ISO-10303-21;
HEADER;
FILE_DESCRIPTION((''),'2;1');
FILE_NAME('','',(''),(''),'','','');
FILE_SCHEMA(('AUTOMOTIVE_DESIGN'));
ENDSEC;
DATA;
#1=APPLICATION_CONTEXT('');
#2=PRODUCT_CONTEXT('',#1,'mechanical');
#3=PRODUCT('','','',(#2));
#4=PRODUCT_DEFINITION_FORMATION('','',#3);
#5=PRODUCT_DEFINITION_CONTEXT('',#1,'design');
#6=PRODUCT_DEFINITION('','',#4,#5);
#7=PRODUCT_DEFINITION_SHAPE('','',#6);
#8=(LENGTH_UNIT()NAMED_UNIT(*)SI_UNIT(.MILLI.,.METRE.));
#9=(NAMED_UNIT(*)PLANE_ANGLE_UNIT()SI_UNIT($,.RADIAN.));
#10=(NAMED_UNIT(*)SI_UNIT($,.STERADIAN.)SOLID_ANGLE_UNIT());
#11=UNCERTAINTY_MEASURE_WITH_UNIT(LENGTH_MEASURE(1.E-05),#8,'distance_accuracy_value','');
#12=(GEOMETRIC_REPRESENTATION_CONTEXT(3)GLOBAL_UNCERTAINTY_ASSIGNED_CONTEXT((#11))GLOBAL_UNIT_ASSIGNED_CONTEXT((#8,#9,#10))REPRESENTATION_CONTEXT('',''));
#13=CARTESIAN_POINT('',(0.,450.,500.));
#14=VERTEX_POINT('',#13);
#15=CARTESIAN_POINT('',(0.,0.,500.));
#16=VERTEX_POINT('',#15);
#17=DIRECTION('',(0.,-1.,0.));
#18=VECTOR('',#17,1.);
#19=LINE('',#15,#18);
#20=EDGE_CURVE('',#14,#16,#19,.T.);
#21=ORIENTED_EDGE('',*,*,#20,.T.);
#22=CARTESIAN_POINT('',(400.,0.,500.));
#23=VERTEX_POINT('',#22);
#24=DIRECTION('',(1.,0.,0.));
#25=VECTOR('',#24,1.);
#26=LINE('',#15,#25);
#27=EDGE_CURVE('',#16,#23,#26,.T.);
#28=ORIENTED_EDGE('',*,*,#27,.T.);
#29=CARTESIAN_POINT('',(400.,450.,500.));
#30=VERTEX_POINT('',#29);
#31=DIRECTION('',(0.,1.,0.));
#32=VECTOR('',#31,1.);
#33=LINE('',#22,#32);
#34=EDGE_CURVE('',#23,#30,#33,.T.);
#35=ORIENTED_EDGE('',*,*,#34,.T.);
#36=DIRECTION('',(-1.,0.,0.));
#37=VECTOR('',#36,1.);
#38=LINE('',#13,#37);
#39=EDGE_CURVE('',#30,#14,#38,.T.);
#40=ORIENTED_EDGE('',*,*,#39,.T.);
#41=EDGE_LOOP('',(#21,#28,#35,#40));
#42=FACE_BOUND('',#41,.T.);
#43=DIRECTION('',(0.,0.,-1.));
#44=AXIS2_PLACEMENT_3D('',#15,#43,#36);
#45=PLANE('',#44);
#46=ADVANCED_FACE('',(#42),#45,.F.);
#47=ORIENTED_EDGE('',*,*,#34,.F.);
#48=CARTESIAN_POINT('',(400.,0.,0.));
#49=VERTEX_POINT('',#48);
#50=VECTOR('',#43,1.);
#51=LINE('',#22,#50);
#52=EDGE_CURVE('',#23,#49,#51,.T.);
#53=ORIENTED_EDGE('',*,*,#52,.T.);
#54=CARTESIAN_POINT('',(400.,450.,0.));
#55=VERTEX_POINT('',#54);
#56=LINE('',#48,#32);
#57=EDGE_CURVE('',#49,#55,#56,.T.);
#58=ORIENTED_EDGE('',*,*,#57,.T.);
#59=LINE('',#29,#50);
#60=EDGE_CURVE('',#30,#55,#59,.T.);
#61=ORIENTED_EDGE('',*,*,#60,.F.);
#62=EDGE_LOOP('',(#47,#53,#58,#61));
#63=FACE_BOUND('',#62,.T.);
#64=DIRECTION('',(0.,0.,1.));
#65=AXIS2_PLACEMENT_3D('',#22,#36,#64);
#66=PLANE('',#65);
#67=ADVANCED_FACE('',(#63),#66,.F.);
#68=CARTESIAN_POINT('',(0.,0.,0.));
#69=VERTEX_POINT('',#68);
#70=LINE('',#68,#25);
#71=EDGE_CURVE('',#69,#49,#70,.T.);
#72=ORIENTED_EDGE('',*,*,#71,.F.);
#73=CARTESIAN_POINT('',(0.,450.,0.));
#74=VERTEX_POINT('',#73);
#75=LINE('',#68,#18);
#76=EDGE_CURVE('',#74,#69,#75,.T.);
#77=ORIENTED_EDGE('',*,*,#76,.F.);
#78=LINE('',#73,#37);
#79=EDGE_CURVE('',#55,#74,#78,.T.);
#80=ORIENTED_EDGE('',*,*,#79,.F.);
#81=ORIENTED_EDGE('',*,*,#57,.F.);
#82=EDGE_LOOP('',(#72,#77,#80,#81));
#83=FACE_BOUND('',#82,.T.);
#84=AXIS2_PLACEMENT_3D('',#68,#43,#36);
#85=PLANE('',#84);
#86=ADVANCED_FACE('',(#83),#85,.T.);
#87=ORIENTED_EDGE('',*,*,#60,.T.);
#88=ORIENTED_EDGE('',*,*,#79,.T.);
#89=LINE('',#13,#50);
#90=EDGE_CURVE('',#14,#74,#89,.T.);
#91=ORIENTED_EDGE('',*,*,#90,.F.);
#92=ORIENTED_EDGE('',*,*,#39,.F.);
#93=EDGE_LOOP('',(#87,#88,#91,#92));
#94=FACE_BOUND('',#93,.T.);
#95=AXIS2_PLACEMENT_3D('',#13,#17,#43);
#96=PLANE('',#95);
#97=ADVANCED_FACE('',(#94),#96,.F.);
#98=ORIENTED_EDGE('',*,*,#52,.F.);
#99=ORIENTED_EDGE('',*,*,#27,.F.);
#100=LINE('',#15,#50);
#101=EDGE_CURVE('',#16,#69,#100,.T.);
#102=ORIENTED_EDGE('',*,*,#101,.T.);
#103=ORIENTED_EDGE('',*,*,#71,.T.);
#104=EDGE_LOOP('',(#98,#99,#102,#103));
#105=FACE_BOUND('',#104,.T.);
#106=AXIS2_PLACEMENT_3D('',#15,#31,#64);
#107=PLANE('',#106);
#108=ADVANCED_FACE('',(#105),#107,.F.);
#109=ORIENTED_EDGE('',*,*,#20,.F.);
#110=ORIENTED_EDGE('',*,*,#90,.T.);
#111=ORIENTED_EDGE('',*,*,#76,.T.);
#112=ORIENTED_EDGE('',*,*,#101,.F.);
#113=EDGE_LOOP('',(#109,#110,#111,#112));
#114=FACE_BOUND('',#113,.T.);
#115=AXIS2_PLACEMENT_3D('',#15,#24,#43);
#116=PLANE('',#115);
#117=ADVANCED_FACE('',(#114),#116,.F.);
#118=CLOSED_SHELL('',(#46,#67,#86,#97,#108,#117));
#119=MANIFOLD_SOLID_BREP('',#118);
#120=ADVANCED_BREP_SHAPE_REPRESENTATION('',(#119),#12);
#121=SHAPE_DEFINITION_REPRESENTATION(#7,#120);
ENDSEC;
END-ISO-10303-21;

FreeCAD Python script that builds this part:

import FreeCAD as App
import Part
import Sketcher
Q = App.Units.Quantity

doc = App.newDocument("Part")
body = doc.addObject("PartDesign::Body", "Body")

sketch1 = doc.addObject("Sketcher::SketchObject", "Sketch")
body.addObject(sketch1)
sketch1.AttachmentSupport = (doc.XY_Plane, [""])
sketch1.MapMode = "FlatFace"
sketch1.addGeometry([
    Part.LineSegment(App.Vector(0, 450, 0), App.Vector(0, 0, 0)),
    Part.LineSegment(App.Vector(0, 0, 0), App.Vector(400, 0, 0)),
    Part.LineSegment(App.Vector(400, 0, 0), App.Vector(400, 450, 0)),
    Part.LineSegment(App.Vector(400, 450, 0), App.Vector(0, 450, 0)),
], False)
sketch1.addConstraint([
    Sketcher.Constraint("Coincident", 0, 2, 1, 1),
    Sketcher.Constraint("Coincident", 1, 2, 2, 1),
    Sketcher.Constraint("Coincident", 2, 2, 3, 1),
    Sketcher.Constraint("Coincident", 3, 2, 0, 1),
    Sketcher.Constraint("Vertical", 0),
    Sketcher.Constraint("Horizontal", 1),
    Sketcher.Constraint("Vertical", 2),
    Sketcher.Constraint("Horizontal", 3),
    Sketcher.Constraint("Coincident", 0, 2, -1, 1),
    Sketcher.Constraint("DistanceX", 1, 1, 1, 2, Q("400 mm")),
    Sketcher.Constraint("DistanceY", 0, 2, 0, 1, Q("450 mm")),
])
pad1 = doc.addObject("PartDesign::Pad", "Pad")
body.addObject(pad1)
pad1.Profile = sketch1
pad1.Length = 500

doc.recompute()
